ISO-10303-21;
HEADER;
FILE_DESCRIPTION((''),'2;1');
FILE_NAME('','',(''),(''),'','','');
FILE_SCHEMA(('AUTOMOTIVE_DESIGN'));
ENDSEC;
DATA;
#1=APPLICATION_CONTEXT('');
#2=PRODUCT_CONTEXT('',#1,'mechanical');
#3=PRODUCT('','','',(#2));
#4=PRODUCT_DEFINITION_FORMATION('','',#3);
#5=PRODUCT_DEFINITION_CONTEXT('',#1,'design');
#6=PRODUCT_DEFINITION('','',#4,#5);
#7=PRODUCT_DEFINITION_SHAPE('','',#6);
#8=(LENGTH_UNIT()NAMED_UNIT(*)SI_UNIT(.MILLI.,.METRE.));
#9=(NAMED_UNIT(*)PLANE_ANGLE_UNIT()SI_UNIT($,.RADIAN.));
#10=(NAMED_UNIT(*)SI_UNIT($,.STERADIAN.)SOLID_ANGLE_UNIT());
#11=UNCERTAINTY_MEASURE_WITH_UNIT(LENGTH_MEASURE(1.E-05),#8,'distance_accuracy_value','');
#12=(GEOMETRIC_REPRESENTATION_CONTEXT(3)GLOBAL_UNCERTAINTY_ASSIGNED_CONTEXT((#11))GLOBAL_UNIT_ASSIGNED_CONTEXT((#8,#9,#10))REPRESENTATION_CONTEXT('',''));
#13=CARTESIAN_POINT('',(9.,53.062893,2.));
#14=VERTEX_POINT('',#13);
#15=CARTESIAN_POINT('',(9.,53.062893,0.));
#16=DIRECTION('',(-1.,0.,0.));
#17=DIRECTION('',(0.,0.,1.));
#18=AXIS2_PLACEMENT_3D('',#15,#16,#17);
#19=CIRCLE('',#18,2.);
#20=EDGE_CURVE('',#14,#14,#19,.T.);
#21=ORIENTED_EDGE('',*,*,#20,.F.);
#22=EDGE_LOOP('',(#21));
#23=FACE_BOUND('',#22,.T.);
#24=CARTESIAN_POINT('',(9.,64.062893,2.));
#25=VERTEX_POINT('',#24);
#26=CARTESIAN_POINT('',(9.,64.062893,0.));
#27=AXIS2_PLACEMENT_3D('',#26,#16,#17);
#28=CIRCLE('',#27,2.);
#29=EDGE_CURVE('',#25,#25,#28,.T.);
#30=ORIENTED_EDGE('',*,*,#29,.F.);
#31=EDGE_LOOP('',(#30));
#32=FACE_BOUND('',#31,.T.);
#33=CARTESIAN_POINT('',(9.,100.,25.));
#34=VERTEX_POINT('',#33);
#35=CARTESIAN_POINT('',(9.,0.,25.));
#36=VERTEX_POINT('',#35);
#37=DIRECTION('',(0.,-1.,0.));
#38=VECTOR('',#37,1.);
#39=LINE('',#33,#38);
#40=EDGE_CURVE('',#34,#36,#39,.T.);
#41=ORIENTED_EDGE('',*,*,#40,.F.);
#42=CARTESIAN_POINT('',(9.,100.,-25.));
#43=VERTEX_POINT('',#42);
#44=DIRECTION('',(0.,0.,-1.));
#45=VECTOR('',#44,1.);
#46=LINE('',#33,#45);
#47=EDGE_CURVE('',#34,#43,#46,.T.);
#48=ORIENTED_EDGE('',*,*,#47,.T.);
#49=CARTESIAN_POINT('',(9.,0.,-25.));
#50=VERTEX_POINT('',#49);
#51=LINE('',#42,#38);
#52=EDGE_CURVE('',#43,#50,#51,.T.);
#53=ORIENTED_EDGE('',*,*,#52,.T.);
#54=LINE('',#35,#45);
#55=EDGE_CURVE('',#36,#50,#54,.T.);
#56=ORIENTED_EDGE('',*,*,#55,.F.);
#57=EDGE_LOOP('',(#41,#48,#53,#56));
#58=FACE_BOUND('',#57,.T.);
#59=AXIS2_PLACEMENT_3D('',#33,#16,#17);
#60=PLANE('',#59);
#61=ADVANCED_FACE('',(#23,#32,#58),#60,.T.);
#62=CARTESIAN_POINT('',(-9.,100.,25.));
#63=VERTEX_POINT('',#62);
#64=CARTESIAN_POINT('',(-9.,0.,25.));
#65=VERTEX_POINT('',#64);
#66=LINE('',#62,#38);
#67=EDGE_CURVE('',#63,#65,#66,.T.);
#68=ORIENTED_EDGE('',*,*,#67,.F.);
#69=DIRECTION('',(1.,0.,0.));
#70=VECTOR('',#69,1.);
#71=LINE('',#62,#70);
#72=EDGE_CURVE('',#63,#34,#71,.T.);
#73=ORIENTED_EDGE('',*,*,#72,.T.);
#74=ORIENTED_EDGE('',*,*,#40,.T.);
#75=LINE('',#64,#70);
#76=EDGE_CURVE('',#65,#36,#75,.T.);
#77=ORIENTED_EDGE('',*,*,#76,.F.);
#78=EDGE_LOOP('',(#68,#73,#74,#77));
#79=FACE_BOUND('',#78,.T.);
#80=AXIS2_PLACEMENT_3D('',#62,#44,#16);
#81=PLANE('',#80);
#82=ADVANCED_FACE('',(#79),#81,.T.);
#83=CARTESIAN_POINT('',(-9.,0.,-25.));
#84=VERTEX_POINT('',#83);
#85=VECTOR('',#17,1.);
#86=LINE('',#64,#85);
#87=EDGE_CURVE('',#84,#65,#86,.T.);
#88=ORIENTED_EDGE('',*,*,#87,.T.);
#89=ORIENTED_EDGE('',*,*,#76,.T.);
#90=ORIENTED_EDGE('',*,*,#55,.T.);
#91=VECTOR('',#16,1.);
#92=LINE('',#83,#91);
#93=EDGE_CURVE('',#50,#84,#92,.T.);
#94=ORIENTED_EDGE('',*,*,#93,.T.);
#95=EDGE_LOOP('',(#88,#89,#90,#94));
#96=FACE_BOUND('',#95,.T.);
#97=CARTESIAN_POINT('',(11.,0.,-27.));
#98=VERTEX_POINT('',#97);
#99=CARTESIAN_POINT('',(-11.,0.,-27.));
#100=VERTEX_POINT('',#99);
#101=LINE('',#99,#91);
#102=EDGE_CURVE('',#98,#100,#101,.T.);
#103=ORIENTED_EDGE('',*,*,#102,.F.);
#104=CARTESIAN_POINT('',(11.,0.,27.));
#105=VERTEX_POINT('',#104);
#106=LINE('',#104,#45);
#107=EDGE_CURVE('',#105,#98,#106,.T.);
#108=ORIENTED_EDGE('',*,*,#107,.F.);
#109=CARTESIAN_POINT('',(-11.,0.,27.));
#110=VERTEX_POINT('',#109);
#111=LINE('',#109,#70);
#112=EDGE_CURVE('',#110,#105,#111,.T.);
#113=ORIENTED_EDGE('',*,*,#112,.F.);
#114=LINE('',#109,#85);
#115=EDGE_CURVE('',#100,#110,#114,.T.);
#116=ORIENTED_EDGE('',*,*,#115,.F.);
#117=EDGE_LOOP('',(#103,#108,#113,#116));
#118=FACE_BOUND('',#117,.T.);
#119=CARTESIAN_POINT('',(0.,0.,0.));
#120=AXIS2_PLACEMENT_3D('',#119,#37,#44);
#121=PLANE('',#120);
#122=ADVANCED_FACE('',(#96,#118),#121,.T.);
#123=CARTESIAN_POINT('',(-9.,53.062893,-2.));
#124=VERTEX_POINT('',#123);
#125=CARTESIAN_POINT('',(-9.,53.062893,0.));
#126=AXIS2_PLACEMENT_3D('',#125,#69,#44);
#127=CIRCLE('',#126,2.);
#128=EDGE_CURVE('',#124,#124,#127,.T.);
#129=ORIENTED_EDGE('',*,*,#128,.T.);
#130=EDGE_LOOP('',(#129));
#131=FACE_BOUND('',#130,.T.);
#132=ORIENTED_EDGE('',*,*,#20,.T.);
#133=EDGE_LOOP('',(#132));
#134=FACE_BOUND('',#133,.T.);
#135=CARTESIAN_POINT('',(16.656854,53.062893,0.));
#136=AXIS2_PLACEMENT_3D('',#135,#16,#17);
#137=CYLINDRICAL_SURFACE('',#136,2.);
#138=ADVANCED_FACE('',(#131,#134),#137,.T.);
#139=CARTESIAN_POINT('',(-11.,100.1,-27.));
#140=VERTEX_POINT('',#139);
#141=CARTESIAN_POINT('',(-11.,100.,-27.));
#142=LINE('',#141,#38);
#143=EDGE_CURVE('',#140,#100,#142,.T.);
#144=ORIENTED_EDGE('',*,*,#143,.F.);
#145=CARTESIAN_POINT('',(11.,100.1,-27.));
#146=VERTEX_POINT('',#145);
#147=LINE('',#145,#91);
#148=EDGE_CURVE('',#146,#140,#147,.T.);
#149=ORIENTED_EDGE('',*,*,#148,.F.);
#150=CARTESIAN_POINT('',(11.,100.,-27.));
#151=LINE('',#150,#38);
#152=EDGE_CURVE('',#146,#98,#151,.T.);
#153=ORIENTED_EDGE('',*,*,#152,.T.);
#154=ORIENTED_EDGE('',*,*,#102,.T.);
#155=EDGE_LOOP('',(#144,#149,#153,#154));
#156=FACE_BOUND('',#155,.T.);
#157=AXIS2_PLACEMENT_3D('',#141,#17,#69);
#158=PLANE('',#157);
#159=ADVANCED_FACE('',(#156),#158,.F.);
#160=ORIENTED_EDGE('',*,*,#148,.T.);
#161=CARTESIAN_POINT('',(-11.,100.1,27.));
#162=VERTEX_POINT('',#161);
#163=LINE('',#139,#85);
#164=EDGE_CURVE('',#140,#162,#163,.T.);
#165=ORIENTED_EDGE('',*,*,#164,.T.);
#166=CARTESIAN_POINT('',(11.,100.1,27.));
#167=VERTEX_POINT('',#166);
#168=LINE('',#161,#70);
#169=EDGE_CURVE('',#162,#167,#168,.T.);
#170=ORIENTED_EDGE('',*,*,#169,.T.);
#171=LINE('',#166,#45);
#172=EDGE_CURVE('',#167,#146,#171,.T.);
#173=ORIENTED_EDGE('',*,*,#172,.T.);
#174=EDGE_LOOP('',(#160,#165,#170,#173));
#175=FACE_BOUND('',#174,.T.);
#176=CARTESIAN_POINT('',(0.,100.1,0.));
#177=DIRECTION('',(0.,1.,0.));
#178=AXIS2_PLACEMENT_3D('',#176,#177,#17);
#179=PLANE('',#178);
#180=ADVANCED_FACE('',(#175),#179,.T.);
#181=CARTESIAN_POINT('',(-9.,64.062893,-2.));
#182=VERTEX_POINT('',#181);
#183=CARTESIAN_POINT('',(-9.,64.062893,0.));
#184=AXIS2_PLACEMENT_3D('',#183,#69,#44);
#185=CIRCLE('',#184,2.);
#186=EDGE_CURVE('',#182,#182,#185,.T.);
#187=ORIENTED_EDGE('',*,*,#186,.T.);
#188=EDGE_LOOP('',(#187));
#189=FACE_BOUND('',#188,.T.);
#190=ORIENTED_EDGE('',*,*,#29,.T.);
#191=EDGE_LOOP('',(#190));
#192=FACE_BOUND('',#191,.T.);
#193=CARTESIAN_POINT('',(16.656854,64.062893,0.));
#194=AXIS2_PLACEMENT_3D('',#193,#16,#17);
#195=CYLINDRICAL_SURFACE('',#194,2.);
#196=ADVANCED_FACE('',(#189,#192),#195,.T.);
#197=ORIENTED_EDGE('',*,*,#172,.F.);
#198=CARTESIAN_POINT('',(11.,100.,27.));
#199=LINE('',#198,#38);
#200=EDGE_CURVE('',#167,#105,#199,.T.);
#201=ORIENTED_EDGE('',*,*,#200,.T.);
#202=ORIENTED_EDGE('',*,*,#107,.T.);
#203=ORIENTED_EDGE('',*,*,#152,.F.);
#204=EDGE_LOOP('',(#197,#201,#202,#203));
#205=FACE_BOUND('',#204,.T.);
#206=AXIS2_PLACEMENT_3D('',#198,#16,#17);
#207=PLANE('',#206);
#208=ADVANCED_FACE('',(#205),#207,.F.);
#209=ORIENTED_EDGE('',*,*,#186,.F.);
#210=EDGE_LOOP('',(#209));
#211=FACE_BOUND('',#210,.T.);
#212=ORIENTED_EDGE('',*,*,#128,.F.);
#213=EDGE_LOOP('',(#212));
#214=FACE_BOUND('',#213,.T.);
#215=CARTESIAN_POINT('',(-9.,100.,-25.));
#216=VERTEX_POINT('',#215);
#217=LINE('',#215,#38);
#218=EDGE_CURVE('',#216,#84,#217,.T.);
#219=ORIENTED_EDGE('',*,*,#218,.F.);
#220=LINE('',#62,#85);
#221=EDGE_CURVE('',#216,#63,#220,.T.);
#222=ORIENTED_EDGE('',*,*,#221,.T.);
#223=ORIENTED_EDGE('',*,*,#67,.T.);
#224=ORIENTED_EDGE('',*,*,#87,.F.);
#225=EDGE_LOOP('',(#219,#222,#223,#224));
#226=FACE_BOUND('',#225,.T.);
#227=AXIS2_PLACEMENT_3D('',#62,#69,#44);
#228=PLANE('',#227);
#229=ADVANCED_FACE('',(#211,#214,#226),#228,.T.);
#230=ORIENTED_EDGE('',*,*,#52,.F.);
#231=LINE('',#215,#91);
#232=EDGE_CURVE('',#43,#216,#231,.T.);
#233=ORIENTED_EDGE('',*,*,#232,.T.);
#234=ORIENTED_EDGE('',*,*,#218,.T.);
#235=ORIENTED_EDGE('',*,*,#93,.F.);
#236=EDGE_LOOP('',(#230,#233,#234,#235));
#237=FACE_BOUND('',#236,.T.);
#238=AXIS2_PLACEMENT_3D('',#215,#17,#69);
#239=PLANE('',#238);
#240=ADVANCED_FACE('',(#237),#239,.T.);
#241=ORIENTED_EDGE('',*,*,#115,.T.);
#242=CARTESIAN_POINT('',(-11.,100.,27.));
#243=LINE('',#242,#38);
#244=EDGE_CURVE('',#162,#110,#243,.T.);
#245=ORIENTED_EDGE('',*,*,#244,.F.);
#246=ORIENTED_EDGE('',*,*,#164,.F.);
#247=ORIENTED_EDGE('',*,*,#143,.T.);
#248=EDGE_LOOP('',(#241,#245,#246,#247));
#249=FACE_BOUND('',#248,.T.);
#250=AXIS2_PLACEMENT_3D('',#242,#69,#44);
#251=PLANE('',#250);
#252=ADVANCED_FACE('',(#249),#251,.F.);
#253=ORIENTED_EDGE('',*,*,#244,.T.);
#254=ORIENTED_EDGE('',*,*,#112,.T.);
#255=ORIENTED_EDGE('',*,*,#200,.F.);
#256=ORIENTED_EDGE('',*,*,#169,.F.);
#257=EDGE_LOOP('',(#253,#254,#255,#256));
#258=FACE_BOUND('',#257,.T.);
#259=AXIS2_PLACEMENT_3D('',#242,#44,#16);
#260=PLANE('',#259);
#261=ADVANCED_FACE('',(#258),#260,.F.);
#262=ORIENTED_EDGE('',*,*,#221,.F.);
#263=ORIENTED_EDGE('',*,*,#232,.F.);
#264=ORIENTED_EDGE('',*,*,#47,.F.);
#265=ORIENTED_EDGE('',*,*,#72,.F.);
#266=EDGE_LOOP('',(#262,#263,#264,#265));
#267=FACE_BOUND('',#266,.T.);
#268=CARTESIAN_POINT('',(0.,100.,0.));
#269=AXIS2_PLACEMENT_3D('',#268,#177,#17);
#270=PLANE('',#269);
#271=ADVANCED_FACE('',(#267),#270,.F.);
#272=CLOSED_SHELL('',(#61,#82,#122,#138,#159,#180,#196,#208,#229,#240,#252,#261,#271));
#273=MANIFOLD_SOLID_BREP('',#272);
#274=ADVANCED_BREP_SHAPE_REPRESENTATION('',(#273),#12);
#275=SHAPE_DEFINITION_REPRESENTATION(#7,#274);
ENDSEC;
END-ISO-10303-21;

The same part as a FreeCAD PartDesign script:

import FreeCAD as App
import Part
import Sketcher
from FreeCAD import Vector
Q = App.Units.Quantity


def add_polygon(sketch, points):
    """Adds a closed chain of lines whose ends are joined by coincident constraints."""
    first, n = sketch.GeometryCount, len(points)
    for a, b in zip(points, points[1:] + points[:1]):
        sketch.addGeometry(Part.LineSegment(App.Vector(*a, 0), App.Vector(*b, 0)), False)
    for i in range(n):
        sketch.addConstraint(Sketcher.Constraint("Coincident", first + i, 2, first + (i + 1) % n, 1))

doc = App.newDocument("Part")
params = doc.addObject("Spreadsheet::Sheet", "Params")
for row, (alias, value) in enumerate([
    ("sketch1_width", "22 mm"),
    ("sketch1_width2", "18 mm"),
    ("sketch1_height", "54 mm"),
    ("sketch1_height2", "50 mm"),
    ("pad1_length", "100 mm"),
    ("sketch2_width", "22 mm"),
    ("sketch2_height", "54 mm"),
    ("pad2_length", "0.1 mm"),
    ("sketch3_diameter", "4 mm"),
    ("pad3_length", "22 mm"),
], start=1):
    params.set(f"A{row}", alias)
    params.set(f"B{row}", "=" + value)
    params.setAlias(f"B{row}", alias)

body = doc.addObject("PartDesign::Body", "Body")

# Sketch on XZ plane
sketch1 = body.newObject("Sketcher::SketchObject", "Sketch")
sketch1.AttachmentSupport = (doc.getObject("XZ_Plane"), [""])
sketch1.MapMode = "FlatFace"
add_polygon(sketch1, [(-11, -27), (-11, 27), (11, 27), (11, -27)])  # lines 0-3
add_polygon(sketch1, [(9, 25), (-9, 25), (-9, -25), (9, -25)])  # lines 4-7
sketch1.addConstraint([
    Sketcher.Constraint("Vertical", 0),
    Sketcher.Constraint("Horizontal", 1),
    Sketcher.Constraint("Vertical", 2),
    Sketcher.Constraint("Horizontal", 3),
    Sketcher.Constraint("Horizontal", 4),
    Sketcher.Constraint("Vertical", 5),
    Sketcher.Constraint("Horizontal", 6),
    Sketcher.Constraint("Vertical", 7),
    Sketcher.Constraint("Symmetric", 0, 2, 2, 2, -1, 1),
    Sketcher.Constraint("Symmetric", 4, 2, 6, 2, -1, 1),
    Sketcher.Constraint("DistanceX", 1, 1, 1, 2, Q("22 mm")),
    Sketcher.Constraint("DistanceX", 4, 2, 4, 1, Q("18 mm")),
    Sketcher.Constraint("DistanceY", 0, 1, 0, 2, Q("54 mm")),
    Sketcher.Constraint("DistanceY", 5, 2, 5, 1, Q("50 mm")),
])
sketch1.setExpression("Constraints[18]", "Params.sketch1_width")
sketch1.setExpression("Constraints[19]", "Params.sketch1_width2")
sketch1.setExpression("Constraints[20]", "Params.sketch1_height")
sketch1.setExpression("Constraints[21]", "Params.sketch1_height2")
pad1 = body.newObject("PartDesign::Pad", "Pad")
pad1.Profile = sketch1
pad1.setExpression("Length", "Params.pad1_length")
pad1.Reversed = True

# Sketch on XZ plane
sketch2 = body.newObject("Sketcher::SketchObject", "Sketch001")
sketch2.AttachmentSupport = (doc.getObject("XZ_Plane"), [""])
sketch2.MapMode = "FlatFace"
sketch2.AttachmentOffset = App.Placement(Vector(0, 0, -100), App.Rotation())
add_polygon(sketch2, [(-11, -27), (-11, 27), (11, 27), (11, -27)])  # lines 0-3
sketch2.addConstraint([
    Sketcher.Constraint("Vertical", 0),
    Sketcher.Constraint("Horizontal", 1),
    Sketcher.Constraint("Vertical", 2),
    Sketcher.Constraint("Horizontal", 3),
    Sketcher.Constraint("Symmetric", 0, 2, 2, 2, -1, 1),
    Sketcher.Constraint("DistanceX", 1, 1, 1, 2, Q("22 mm")),
    Sketcher.Constraint("DistanceY", 0, 1, 0, 2, Q("54 mm")),
])
sketch2.setExpression("Constraints[9]", "Params.sketch2_width")
sketch2.setExpression("Constraints[10]", "Params.sketch2_height")
pad2 = body.newObject("PartDesign::Pad", "Pad001")
pad2.Profile = sketch2
pad2.setExpression("Length", "Params.pad2_length")
pad2.Reversed = True

# Sketch on YZ plane
sketch3 = body.newObject("Sketcher::SketchObject", "Sketch002")
sketch3.AttachmentSupport = (doc.getObject("YZ_Plane"), [""])
sketch3.MapMode = "FlatFace"
sketch3.AttachmentOffset = App.Placement(Vector(0, 0, -11), App.Rotation())
sketch3.addGeometry([
    Part.Circle(Vector(64.062893, 0, 0), Vector(0, 0, 1), 2),
    Part.Circle(Vector(53.062893, 0, 0), Vector(0, 0, 1), 2),
], False)
sketch3.addConstraint([
    Sketcher.Constraint("Equal", 0, 1),
    Sketcher.Constraint("PointOnObject", 0, 3, -1),
    Sketcher.Constraint("PointOnObject", 1, 3, -1),
    Sketcher.Constraint("Diameter", 0, Q("4 mm")),
    Sketcher.Constraint("DistanceX", 1, 3, 0, 3, Q("11 mm")),
    Sketcher.Constraint("DistanceX", -1, 1, 0, 3, Q("64.062893 mm")),
])
sketch3.setExpression("Constraints[3]", "Params.sketch3_diameter")
pad3 = body.newObject("PartDesign::Pad", "Pad002")
pad3.Profile = sketch3
pad3.setExpression("Length", "Params.pad3_length")

doc.recompute()
